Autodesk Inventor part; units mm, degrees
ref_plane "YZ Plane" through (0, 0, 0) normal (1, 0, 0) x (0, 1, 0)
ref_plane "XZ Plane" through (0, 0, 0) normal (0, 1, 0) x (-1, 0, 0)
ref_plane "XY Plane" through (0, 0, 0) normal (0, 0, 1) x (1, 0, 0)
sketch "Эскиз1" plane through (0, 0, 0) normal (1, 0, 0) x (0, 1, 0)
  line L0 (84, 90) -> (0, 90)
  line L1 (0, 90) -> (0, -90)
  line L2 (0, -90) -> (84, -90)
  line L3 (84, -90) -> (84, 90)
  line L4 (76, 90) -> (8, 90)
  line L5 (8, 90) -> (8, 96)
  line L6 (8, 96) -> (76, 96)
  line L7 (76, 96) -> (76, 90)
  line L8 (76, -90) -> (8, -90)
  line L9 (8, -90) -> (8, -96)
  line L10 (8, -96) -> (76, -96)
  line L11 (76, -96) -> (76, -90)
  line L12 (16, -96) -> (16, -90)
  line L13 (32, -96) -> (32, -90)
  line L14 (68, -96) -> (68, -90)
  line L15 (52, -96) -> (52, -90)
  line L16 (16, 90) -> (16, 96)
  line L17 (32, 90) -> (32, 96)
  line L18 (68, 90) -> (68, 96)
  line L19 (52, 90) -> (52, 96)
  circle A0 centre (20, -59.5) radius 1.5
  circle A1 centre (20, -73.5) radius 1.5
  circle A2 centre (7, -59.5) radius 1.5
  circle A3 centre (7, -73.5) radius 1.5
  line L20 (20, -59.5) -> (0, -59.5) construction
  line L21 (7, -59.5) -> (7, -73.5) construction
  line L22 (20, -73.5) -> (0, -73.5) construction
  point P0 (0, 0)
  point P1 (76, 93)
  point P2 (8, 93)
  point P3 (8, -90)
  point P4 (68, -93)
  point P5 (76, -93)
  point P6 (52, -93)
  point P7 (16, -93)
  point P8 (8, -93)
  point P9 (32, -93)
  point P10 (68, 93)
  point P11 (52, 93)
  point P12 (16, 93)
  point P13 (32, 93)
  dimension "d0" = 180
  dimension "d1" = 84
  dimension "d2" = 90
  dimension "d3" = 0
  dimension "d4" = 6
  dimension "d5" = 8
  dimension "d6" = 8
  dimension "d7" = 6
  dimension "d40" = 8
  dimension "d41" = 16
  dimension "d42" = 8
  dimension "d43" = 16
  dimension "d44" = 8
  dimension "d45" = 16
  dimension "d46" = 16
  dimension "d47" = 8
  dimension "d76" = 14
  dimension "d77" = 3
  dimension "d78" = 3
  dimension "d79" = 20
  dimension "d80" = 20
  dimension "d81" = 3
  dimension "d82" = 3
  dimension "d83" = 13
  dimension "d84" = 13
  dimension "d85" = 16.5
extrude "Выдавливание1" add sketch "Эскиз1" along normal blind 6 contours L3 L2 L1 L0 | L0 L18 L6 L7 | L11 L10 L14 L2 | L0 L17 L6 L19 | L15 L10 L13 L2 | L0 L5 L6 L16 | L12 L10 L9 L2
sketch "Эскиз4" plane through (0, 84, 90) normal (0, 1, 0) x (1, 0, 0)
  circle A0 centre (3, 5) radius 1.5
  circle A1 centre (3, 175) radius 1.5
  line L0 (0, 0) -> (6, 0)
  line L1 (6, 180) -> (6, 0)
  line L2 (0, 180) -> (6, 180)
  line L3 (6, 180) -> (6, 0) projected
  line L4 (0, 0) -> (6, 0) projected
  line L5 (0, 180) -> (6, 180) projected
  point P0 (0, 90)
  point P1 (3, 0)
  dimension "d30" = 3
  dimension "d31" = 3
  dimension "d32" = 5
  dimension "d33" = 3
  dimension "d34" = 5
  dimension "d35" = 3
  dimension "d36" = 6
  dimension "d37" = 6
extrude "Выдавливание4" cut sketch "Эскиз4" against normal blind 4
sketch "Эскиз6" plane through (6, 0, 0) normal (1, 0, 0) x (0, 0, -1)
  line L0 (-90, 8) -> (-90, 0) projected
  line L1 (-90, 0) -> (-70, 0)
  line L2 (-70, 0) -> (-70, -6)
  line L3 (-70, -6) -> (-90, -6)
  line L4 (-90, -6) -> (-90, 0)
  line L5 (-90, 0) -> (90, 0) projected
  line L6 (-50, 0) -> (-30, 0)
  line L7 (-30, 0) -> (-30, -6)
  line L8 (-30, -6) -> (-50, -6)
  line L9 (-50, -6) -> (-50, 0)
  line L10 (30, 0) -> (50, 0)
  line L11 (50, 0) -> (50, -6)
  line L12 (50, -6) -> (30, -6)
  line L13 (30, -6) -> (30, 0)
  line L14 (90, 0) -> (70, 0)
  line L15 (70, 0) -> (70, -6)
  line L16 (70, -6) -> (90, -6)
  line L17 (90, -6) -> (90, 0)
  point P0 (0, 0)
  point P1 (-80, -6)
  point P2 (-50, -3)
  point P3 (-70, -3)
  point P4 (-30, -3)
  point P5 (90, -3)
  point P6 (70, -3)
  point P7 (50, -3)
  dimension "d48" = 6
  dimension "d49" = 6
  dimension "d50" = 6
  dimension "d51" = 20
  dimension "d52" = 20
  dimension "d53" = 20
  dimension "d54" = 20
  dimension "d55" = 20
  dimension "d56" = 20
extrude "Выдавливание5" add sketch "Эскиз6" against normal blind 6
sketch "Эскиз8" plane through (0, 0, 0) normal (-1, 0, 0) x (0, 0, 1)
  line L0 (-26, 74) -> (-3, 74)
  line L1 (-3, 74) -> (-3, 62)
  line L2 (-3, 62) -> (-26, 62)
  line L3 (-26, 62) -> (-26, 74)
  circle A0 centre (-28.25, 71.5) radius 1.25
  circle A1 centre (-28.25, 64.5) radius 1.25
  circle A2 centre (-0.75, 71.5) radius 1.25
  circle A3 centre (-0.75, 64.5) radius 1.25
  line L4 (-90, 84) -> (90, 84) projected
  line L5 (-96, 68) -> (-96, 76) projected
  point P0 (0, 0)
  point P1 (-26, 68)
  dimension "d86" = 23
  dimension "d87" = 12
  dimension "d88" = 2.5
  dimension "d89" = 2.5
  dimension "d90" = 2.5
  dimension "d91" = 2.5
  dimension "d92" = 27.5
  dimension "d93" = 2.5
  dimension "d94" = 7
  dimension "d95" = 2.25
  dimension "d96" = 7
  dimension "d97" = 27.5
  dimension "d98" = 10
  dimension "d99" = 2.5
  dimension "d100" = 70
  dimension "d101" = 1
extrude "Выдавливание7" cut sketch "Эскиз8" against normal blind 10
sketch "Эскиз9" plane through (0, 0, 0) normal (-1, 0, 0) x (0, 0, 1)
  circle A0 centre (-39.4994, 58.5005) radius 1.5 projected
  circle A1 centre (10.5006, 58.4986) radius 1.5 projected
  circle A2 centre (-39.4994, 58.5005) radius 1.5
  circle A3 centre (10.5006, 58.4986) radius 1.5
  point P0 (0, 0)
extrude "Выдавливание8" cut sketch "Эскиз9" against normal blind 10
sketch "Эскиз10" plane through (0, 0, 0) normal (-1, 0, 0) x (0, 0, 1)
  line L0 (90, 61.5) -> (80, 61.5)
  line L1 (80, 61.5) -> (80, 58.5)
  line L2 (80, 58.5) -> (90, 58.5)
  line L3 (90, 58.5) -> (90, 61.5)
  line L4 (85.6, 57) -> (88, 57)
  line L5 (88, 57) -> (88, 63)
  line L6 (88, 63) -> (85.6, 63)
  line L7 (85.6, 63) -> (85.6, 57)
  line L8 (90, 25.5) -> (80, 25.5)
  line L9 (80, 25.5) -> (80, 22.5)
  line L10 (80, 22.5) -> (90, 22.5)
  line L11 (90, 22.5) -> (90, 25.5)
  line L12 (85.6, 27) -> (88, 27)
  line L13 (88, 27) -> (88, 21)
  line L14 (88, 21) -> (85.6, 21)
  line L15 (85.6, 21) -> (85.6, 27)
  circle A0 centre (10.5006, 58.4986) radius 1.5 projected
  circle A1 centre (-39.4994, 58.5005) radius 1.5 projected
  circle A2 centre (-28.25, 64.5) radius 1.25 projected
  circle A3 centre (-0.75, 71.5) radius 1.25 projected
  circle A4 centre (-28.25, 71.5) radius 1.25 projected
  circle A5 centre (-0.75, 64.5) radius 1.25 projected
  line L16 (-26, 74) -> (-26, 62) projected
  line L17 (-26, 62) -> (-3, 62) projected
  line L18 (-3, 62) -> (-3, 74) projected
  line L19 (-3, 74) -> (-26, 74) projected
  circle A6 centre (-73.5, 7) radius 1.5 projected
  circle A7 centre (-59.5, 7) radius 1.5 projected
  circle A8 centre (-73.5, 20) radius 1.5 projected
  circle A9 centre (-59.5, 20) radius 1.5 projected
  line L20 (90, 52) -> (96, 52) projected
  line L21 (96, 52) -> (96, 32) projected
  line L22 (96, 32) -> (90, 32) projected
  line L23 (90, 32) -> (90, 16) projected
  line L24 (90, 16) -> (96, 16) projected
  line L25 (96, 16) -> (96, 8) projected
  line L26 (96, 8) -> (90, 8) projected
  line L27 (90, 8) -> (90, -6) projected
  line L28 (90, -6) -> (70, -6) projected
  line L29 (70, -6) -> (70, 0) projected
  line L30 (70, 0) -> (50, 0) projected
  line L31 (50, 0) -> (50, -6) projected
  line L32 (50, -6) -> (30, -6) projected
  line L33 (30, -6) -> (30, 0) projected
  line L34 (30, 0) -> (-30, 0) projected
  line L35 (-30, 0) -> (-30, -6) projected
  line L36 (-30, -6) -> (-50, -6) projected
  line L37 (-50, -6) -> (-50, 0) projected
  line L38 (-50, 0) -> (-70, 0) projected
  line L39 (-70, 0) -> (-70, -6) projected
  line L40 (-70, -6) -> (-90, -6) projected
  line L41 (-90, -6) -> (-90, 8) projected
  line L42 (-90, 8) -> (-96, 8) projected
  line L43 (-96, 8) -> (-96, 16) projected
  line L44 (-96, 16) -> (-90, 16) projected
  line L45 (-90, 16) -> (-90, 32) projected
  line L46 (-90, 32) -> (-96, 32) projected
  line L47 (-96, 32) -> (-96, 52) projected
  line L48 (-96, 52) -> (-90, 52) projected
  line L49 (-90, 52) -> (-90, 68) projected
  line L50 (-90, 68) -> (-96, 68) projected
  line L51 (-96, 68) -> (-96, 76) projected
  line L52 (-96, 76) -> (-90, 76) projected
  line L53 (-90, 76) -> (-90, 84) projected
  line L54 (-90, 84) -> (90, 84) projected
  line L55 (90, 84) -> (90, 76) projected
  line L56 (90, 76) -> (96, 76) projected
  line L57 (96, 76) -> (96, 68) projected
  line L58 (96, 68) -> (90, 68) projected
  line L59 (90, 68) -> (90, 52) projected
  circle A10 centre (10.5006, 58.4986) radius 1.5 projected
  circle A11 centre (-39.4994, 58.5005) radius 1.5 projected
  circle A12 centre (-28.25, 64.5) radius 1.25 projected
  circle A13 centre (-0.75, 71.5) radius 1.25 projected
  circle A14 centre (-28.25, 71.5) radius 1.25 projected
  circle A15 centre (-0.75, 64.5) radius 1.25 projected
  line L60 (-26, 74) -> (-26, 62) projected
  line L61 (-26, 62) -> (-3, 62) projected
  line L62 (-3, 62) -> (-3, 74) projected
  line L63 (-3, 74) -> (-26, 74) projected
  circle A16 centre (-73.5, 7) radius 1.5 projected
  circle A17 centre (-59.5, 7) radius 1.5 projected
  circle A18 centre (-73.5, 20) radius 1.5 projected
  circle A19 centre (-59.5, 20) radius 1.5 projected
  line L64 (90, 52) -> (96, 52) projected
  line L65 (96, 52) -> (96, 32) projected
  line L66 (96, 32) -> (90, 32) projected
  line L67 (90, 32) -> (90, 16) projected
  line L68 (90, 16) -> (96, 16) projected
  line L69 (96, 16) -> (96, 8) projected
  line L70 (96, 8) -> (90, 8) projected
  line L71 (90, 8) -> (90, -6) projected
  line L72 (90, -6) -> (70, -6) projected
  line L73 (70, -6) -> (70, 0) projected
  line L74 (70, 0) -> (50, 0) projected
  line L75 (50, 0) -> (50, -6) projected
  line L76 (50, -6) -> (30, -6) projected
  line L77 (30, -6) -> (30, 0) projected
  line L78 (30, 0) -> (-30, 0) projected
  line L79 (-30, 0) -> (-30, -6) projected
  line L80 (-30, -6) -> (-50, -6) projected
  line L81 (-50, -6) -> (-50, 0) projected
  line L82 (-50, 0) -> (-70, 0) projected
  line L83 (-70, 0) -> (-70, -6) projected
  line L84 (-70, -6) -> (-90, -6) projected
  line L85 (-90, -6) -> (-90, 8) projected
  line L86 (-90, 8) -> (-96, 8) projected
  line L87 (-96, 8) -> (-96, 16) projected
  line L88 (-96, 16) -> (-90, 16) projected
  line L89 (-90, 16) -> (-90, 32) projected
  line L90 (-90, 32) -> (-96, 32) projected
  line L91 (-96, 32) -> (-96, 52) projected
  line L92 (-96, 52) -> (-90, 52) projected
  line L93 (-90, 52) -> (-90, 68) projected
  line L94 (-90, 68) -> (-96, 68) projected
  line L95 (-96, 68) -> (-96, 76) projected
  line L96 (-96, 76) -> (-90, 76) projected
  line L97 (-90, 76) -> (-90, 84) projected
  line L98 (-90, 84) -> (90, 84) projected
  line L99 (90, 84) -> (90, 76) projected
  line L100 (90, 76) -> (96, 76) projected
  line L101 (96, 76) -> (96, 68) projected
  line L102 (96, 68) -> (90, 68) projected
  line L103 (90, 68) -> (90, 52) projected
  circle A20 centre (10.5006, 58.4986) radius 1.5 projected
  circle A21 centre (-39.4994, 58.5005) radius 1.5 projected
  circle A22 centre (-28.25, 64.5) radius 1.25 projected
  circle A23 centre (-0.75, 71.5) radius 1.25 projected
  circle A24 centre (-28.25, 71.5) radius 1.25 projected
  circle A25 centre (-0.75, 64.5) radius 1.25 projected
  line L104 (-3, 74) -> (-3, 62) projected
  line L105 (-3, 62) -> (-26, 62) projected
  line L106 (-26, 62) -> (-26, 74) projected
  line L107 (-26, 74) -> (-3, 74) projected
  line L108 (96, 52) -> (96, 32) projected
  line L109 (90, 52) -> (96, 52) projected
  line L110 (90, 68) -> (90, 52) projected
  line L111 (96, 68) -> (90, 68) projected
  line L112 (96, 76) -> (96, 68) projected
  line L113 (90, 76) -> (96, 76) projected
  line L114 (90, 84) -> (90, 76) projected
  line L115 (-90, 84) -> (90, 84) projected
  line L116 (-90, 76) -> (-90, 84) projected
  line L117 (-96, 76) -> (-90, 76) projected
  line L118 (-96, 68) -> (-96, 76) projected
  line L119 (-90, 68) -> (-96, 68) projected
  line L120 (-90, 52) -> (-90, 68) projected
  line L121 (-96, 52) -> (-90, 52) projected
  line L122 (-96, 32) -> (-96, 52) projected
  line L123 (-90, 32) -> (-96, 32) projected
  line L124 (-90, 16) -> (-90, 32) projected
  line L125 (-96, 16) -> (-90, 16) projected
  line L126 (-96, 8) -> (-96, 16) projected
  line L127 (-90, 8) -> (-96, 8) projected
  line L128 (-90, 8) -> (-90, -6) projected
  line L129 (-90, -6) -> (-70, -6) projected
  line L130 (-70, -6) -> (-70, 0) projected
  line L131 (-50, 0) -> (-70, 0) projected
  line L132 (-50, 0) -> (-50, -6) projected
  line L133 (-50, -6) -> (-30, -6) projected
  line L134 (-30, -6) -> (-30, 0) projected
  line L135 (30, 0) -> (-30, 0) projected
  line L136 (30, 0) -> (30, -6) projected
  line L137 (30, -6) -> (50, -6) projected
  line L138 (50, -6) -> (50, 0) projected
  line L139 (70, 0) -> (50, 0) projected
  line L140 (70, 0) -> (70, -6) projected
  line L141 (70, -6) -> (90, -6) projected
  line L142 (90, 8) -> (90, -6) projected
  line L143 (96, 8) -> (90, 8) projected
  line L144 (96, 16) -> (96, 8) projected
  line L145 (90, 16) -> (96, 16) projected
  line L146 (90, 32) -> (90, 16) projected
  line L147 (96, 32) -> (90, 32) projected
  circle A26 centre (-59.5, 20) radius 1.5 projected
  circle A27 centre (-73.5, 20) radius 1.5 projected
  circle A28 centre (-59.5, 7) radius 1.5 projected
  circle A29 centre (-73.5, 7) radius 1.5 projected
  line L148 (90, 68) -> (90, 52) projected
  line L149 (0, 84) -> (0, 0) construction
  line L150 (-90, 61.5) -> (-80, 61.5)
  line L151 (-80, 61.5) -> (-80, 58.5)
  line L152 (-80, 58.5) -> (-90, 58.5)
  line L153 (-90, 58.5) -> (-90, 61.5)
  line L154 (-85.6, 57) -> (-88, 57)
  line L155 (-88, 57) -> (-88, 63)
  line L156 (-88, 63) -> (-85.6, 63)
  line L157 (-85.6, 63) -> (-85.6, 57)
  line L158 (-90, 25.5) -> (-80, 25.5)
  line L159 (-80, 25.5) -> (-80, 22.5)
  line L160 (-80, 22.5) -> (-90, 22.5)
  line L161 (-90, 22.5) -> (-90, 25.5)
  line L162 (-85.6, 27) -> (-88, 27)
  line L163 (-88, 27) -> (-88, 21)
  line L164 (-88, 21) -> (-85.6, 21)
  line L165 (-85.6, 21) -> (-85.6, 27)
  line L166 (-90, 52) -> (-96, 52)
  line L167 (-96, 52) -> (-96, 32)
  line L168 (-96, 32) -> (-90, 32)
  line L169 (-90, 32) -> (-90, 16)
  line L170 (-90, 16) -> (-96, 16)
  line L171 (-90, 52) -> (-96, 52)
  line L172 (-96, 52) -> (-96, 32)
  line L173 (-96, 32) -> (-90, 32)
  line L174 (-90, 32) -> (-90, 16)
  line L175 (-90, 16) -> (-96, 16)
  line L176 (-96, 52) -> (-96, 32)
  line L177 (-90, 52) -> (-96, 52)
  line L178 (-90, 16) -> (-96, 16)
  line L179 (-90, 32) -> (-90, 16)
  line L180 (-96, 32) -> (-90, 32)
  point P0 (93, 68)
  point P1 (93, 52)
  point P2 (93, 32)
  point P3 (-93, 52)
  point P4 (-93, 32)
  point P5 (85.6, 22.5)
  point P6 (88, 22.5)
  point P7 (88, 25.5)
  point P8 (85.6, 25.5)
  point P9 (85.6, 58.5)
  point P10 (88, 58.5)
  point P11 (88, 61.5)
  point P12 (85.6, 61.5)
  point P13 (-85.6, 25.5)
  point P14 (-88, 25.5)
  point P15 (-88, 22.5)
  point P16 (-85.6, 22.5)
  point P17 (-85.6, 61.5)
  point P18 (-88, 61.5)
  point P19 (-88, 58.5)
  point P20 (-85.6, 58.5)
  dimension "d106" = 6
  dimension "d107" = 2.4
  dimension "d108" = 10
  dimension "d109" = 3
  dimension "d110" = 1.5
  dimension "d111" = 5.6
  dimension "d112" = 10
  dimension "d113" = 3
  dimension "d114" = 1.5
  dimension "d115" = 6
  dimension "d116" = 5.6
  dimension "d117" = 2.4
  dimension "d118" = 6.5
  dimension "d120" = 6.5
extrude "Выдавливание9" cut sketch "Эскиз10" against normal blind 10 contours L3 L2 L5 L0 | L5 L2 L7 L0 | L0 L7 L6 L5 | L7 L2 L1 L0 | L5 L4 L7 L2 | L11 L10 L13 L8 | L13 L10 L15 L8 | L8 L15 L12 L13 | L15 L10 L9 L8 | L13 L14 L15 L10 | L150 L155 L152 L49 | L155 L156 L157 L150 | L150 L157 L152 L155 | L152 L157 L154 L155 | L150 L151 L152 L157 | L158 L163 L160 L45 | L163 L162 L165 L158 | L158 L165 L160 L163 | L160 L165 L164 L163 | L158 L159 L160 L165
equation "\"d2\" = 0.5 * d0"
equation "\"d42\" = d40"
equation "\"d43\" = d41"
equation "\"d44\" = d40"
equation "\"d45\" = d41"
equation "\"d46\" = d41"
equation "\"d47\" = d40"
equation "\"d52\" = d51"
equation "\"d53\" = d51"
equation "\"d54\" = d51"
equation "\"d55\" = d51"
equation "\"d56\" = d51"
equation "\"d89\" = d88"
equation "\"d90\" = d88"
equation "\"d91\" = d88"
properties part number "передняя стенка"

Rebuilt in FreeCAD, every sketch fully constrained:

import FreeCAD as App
import Part
import Sketcher
Q = App.Units.Quantity

doc = App.newDocument("Part")
body = doc.addObject("PartDesign::Body", "Body")

# Sketch on YZ plane
sketch1 = body.newObject("Sketcher::SketchObject", "Sketch")
sketch1.AttachmentSupport = (doc.getObject("YZ_Plane"), [""])
sketch1.MapMode = "FlatFace"
sketch1.addGeometry([
    Part.LineSegment(App.Vector(84, -90, 0), App.Vector(84, 90, 0)),  # 0
    Part.LineSegment(App.Vector(84, 90, 0), App.Vector(76, 90, 0)),  # 1
    Part.LineSegment(App.Vector(76, 90, 0), App.Vector(76, 96, 0)),  # 2
    Part.LineSegment(App.Vector(76, 96, 0), App.Vector(68, 96, 0)),  # 3
    Part.LineSegment(App.Vector(68, 96, 0), App.Vector(68, 90, 0)),  # 4
    Part.LineSegment(App.Vector(68, 90, 0), App.Vector(52, 90, 0)),  # 5
    Part.LineSegment(App.Vector(52, 90, 0), App.Vector(52, 96, 0)),  # 6
    Part.LineSegment(App.Vector(52, 96, 0), App.Vector(32, 96, 0)),  # 7
    Part.LineSegment(App.Vector(32, 96, 0), App.Vector(32, 90, 0)),  # 8
    Part.LineSegment(App.Vector(32, 90, 0), App.Vector(16, 90, 0)),  # 9
    Part.LineSegment(App.Vector(16, 90, 0), App.Vector(16, 96, 0)),  # 10
    Part.LineSegment(App.Vector(16, 96, 0), App.Vector(8, 96, 0)),  # 11
    Part.LineSegment(App.Vector(8, 96, 0), App.Vector(8, 90, 0)),  # 12
    Part.LineSegment(App.Vector(8, 90, 0), App.Vector(0, 90, 0)),  # 13
    Part.LineSegment(App.Vector(0, 90, 0), App.Vector(0, -90, 0)),  # 14
    Part.LineSegment(App.Vector(0, -90, 0), App.Vector(8, -90, 0)),  # 15
    Part.LineSegment(App.Vector(8, -90, 0), App.Vector(8, -96, 0)),  # 16
    Part.LineSegment(App.Vector(8, -96, 0), App.Vector(16, -96, 0)),  # 17
    Part.LineSegment(App.Vector(16, -96, 0), App.Vector(16, -90, 0)),  # 18
    Part.LineSegment(App.Vector(16, -90, 0), App.Vector(32, -90, 0)),  # 19
    Part.LineSegment(App.Vector(32, -90, 0), App.Vector(32, -96, 0)),  # 20
    Part.LineSegment(App.Vector(32, -96, 0), App.Vector(52, -96, 0)),  # 21
    Part.LineSegment(App.Vector(52, -96, 0), App.Vector(52, -90, 0)),  # 22
    Part.LineSegment(App.Vector(52, -90, 0), App.Vector(68, -90, 0)),  # 23
    Part.LineSegment(App.Vector(68, -90, 0), App.Vector(68, -96, 0)),  # 24
    Part.LineSegment(App.Vector(68, -96, 0), App.Vector(76, -96, 0)),  # 25
    Part.LineSegment(App.Vector(76, -96, 0), App.Vector(76, -90, 0)),  # 26
    Part.LineSegment(App.Vector(76, -90, 0), App.Vector(84, -90, 0)),  # 27
    Part.Circle(App.Vector(7, -73.5, 0), App.Vector(0, 0, 1), 1.5),  # 28
    Part.Circle(App.Vector(20, -73.5, 0), App.Vector(0, 0, 1), 1.5),  # 29
    Part.Circle(App.Vector(7, -59.5, 0), App.Vector(0, 0, 1), 1.5),  # 30
    Part.Circle(App.Vector(20, -59.5, 0), App.Vector(0, 0, 1), 1.5),  # 31
], False)
sketch1.addConstraint([
    Sketcher.Constraint("Coincident", 0, 2, 1, 1),
    Sketcher.Constraint("Coincident", 1, 2, 2, 1),
    Sketcher.Constraint("Coincident", 2, 2, 3, 1),
    Sketcher.Constraint("Coincident", 3, 2, 4, 1),
    Sketcher.Constraint("Coincident", 4, 2, 5, 1),
    Sketcher.Constraint("Coincident", 5, 2, 6, 1),
    Sketcher.Constraint("Coincident", 6, 2, 7, 1),
    Sketcher.Constraint("Coincident", 7, 2, 8, 1),
    Sketcher.Constraint("Coincident", 8, 2, 9, 1),
    Sketcher.Constraint("Coincident", 9, 2, 10, 1),
    Sketcher.Constraint("Coincident", 10, 2, 11, 1),
    Sketcher.Constraint("Coincident", 11, 2, 12, 1),
    Sketcher.Constraint("Coincident", 12, 2, 13, 1),
    Sketcher.Constraint("Coincident", 13, 2, 14, 1),
    Sketcher.Constraint("Coincident", 14, 2, 15, 1),
    Sketcher.Constraint("Coincident", 15, 2, 16, 1),
    Sketcher.Constraint("Coincident", 16, 2, 17, 1),
    Sketcher.Constraint("Coincident", 17, 2, 18, 1),
    Sketcher.Constraint("Coincident", 18, 2, 19, 1),
    Sketcher.Constraint("Coincident", 19, 2, 20, 1),
    Sketcher.Constraint("Coincident", 20, 2, 21, 1),
    Sketcher.Constraint("Coincident", 21, 2, 22, 1),
    Sketcher.Constraint("Coincident", 22, 2, 23, 1),
    Sketcher.Constraint("Coincident", 23, 2, 24, 1),
    Sketcher.Constraint("Coincident", 24, 2, 25, 1),
    Sketcher.Constraint("Coincident", 25, 2, 26, 1),
    Sketcher.Constraint("Coincident", 26, 2, 27, 1),
    Sketcher.Constraint("Coincident", 27, 2, 0, 1),
    Sketcher.Constraint("Vertical", 0),
    Sketcher.Constraint("Horizontal", 1),
    Sketcher.Constraint("Vertical", 2),
    Sketcher.Constraint("Horizontal", 3),
    Sketcher.Constraint("Vertical", 4),
    Sketcher.Constraint("Horizontal", 5),
    Sketcher.Constraint("Vertical", 6),
    Sketcher.Constraint("Horizontal", 7),
    Sketcher.Constraint("Vertical", 8),
    Sketcher.Constraint("Horizontal", 9),
    Sketcher.Constraint("Vertical", 10),
    Sketcher.Constraint("Horizontal", 11),
    Sketcher.Constraint("Vertical", 12),
    Sketcher.Constraint("Horizontal", 13),
    Sketcher.Constraint("Vertical", 14),
    Sketcher.Constraint("Horizontal", 15),
    Sketcher.Constraint("Vertical", 16),
    Sketcher.Constraint("Horizontal", 17),
    Sketcher.Constraint("Vertical", 18),
    Sketcher.Constraint("Horizontal", 19),
    Sketcher.Constraint("Vertical", 20),
    Sketcher.Constraint("Horizontal", 21),
    Sketcher.Constraint("Vertical", 22),
    Sketcher.Constraint("Horizontal", 23),
    Sketcher.Constraint("Vertical", 24),
    Sketcher.Constraint("Horizontal", 25),
    Sketcher.Constraint("Vertical", 26),
    Sketcher.Constraint("Horizontal", 27),
    Sketcher.Constraint("Equal", 28, 29),
    Sketcher.Constraint("Equal", 29, 30),
    Sketcher.Constraint("Equal", 30, 31),
    Sketcher.Constraint("Symmetric", 13, 2, 14, 2, -1, 1),
    Sketcher.Constraint("Symmetric", 11, 2, 16, 2, -1),
    Sketcher.Constraint("Symmetric", 9, 2, 18, 2, -1),
    Sketcher.Constraint("Symmetric", 7, 2, 20, 2, -1),
    Sketcher.Constraint("Symmetric", 5, 2, 22, 2, -1),
    Sketcher.Constraint("Symmetric", 3, 2, 24, 2, -1),
    Sketcher.Constraint("Symmetric", 1, 2, 26, 2, -1),
    Sketcher.Constraint("Horizontal", 28, 3, 29, 3),
    Sketcher.Constraint("Horizontal", 30, 3, 31, 3),
    Sketcher.Constraint("Horizontal", 1, 2, 4, 2),
    Sketcher.Constraint("Horizontal", 3, 2, 6, 2),
    Sketcher.Constraint("Horizontal", 5, 2, 8, 2),
    Sketcher.Constraint("Horizontal", 7, 2, 10, 2),
    Sketcher.Constraint("Horizontal", 9, 2, 12, 2),
    Sketcher.Constraint("Vertical", 28, 3, 30, 3),
    Sketcher.Constraint("Vertical", 29, 3, 31, 3),
    Sketcher.Constraint("Equal", 1, 3),
    Sketcher.Constraint("Equal", 5, 9),
    Sketcher.Constraint("Equal", 3, 11),
    Sketcher.Constraint("Equal", 11, 13),
    Sketcher.Constraint("Diameter", 28, Q("3 mm")),
    Sketcher.Constraint("DistanceX", 1, 2, 1, 1, Q("8 mm")),
    Sketcher.Constraint("DistanceX", 5, 2, 5, 1, Q("16 mm")),
    Sketcher.Constraint("DistanceX", 7, 2, 7, 1, Q("20 mm")),
    Sketcher.Constraint("DistanceY", 0, 1, 0, 2, Q("180 mm")),
    Sketcher.Constraint("DistanceY", 2, 1, 2, 2, Q("6 mm")),
    Sketcher.Constraint("DistanceX", -1, 1, 29, 3, Q("20 mm")),
    Sketcher.Constraint("DistanceX", 28, 3, 29, 3, Q("13 mm")),
    Sketcher.Constraint("DistanceY", 28, 3, 30, 3, Q("14 mm")),
    Sketcher.Constraint("DistanceY", 14, 2, 28, 3, Q("16.5 mm")),
])
pad1 = body.newObject("PartDesign::Pad", "Pad")
pad1.Profile = sketch1
pad1.Length = 6

# Sketch on XZ plane
sketch2 = body.newObject("Sketcher::SketchObject", "Sketch001")
sketch2.AttachmentSupport = (doc.getObject("XZ_Plane"), [""])
sketch2.MapMode = "FlatFace"
sketch2.AttachmentOffset = App.Placement(App.Vector(0, 0, -84), App.Rotation())
sketch2.addGeometry([
    Part.Circle(App.Vector(3, 85, 0), App.Vector(0, 0, 1), 1.5),
    Part.Circle(App.Vector(3, -85, 0), App.Vector(0, 0, 1), 1.5),
], False)
sketch2.addConstraint([
    Sketcher.Constraint("Equal", 0, 1),
    Sketcher.Constraint("Symmetric", 0, 3, 1, 3, -1),
    Sketcher.Constraint("Diameter", 0, Q("3 mm")),
    Sketcher.Constraint("DistanceX", -1, 1, 0, 3, Q("3 mm")),
    Sketcher.Constraint("DistanceY", -1, 1, 0, 3, Q("85 mm")),
])
pocket1 = body.newObject("PartDesign::Pocket", "Pocket")
pocket1.Profile = sketch2
pocket1.Length = 4
pocket1.Reversed = True

# Sketch on YZ plane
sketch3 = body.newObject("Sketcher::SketchObject", "Sketch002")
sketch3.AttachmentSupport = (doc.getObject("YZ_Plane"), [""])
sketch3.MapMode = "FlatFace"
sketch3.AttachmentOffset = App.Placement(App.Vector(0, 0, 6), App.Rotation())
sketch3.addGeometry([
    Part.LineSegment(App.Vector(0, -90, 0), App.Vector(0, -70, 0)),  # 0
    Part.LineSegment(App.Vector(0, -70, 0), App.Vector(-6, -70, 0)),  # 1
    Part.LineSegment(App.Vector(-6, -70, 0), App.Vector(-6, -90, 0)),  # 2
    Part.LineSegment(App.Vector(-6, -90, 0), App.Vector(0, -90, 0)),  # 3
    Part.LineSegment(App.Vector(0, -50, 0), App.Vector(0, -30, 0)),  # 4
    Part.LineSegment(App.Vector(0, -30, 0), App.Vector(-6, -30, 0)),  # 5
    Part.LineSegment(App.Vector(-6, -30, 0), App.Vector(-6, -50, 0)),  # 6
    Part.LineSegment(App.Vector(-6, -50, 0), App.Vector(0, -50, 0)),  # 7
    Part.LineSegment(App.Vector(0, 30, 0), App.Vector(0, 50, 0)),  # 8
    Part.LineSegment(App.Vector(0, 50, 0), App.Vector(-6, 50, 0)),  # 9
    Part.LineSegment(App.Vector(-6, 50, 0), App.Vector(-6, 30, 0)),  # 10
    Part.LineSegment(App.Vector(-6, 30, 0), App.Vector(0, 30, 0)),  # 11
    Part.LineSegment(App.Vector(0, 70, 0), App.Vector(0, 90, 0)),  # 12
    Part.LineSegment(App.Vector(0, 90, 0), App.Vector(-6, 90, 0)),  # 13
    Part.LineSegment(App.Vector(-6, 90, 0), App.Vector(-6, 70, 0)),  # 14
    Part.LineSegment(App.Vector(-6, 70, 0), App.Vector(0, 70, 0)),  # 15
], False)
sketch3.addConstraint([
    Sketcher.Constraint("Coincident", 0, 2, 1, 1),
    Sketcher.Constraint("Coincident", 1, 2, 2, 1),
    Sketcher.Constraint("Coincident", 2, 2, 3, 1),
    Sketcher.Constraint("Coincident", 3, 2, 0, 1),
    Sketcher.Constraint("Coincident", 4, 2, 5, 1),
    Sketcher.Constraint("Coincident", 5, 2, 6, 1),
    Sketcher.Constraint("Coincident", 6, 2, 7, 1),
    Sketcher.Constraint("Coincident", 7, 2, 4, 1),
    Sketcher.Constraint("Coincident", 8, 2, 9, 1),
    Sketcher.Constraint("Coincident", 9, 2, 10, 1),
    Sketcher.Constraint("Coincident", 10, 2, 11, 1),
    Sketcher.Constraint("Coincident", 11, 2, 8, 1),
    Sketcher.Constraint("Coincident", 12, 2, 13, 1),
    Sketcher.Constraint("Coincident", 13, 2, 14, 1),
    Sketcher.Constraint("Coincident", 14, 2, 15, 1),
    Sketcher.Constraint("Coincident", 15, 2, 12, 1),
    Sketcher.Constraint("Vertical", 0),
    Sketcher.Constraint("Horizontal", 1),
    Sketcher.Constraint("Vertical", 2),
    Sketcher.Constraint("Horizontal", 3),
    Sketcher.Constraint("Vertical", 4),
    Sketcher.Constraint("Horizontal", 5),
    Sketcher.Constraint("Vertical", 6),
    Sketcher.Constraint("Horizontal", 7),
    Sketcher.Constraint("Vertical", 8),
    Sketcher.Constraint("Horizontal", 9),
    Sketcher.Constraint("Vertical", 10),
    Sketcher.Constraint("Horizontal", 11),
    Sketcher.Constraint("Vertical", 12),
    Sketcher.Constraint("Horizontal", 13),
    Sketcher.Constraint("Vertical", 14),
    Sketcher.Constraint("Horizontal", 15),
    Sketcher.Constraint("Symmetric", 7, 2, 8, 2, -1, 1),
    Sketcher.Constraint("Symmetric", 3, 2, 12, 2, -1, 1),
    Sketcher.Constraint("Symmetric", 5, 2, 10, 2, -1),
    Sketcher.Constraint("Symmetric", 1, 2, 14, 2, -1),
    Sketcher.Constraint("PointOnObject", 0, 2, -2),
    Sketcher.Constraint("PointOnObject", 4, 2, -2),
    Sketcher.Constraint("Vertical", 2, 2, 5, 2),
    Sketcher.Constraint("Equal", 2, 4),
    Sketcher.Constraint("DistanceX", 1, 2, 1, 1, Q("6 mm")),
    Sketcher.Constraint("DistanceY", 0, 1, 0, 2, Q("20 mm")),
    Sketcher.Constraint("DistanceY", 1, 2, 6, 2, Q("20 mm")),
    Sketcher.Constraint("DistanceY", 0, 2, -1, 1, Q("70 mm")),
])
pad2 = body.newObject("PartDesign::Pad", "Pad001")
pad2.Profile = sketch3
pad2.Length = 6
pad2.Reversed = True

# Sketch on YZ plane
sketch4 = body.newObject("Sketcher::SketchObject", "Sketch003")
sketch4.AttachmentSupport = (doc.getObject("YZ_Plane"), [""])
sketch4.MapMode = "FlatFace"
sketch4.addGeometry([
    Part.LineSegment(App.Vector(74, -3, 0), App.Vector(74, -26, 0)),  # 0
    Part.LineSegment(App.Vector(74, -26, 0), App.Vector(62, -26, 0)),  # 1
    Part.LineSegment(App.Vector(62, -26, 0), App.Vector(62, -3, 0)),  # 2
    Part.LineSegment(App.Vector(62, -3, 0), App.Vector(74, -3, 0)),  # 3
    Part.Circle(App.Vector(71.5, -28.25, 0), App.Vector(0, 0, 1), 1.25),  # 4
    Part.Circle(App.Vector(64.5, -28.25, 0), App.Vector(0, 0, 1), 1.25),  # 5
    Part.Circle(App.Vector(71.5, -0.75, 0), App.Vector(0, 0, 1), 1.25),  # 6
    Part.Circle(App.Vector(64.5, -0.75, 0), App.Vector(0, 0, 1), 1.25),  # 7
], False)
sketch4.addConstraint([
    Sketcher.Constraint("Coincident", 0, 2, 1, 1),
    Sketcher.Constraint("Coincident", 1, 2, 2, 1),
    Sketcher.Constraint("Coincident", 2, 2, 3, 1),
    Sketcher.Constraint("Coincident", 3, 2, 0, 1),
    Sketcher.Constraint("Vertical", 0),
    Sketcher.Constraint("Horizontal", 1),
    Sketcher.Constraint("Vertical", 2),
    Sketcher.Constraint("Horizontal", 3),
    Sketcher.Constraint("Equal", 4, 5),
    Sketcher.Constraint("Equal", 5, 6),
    Sketcher.Constraint("Equal", 6, 7),
    Sketcher.Constraint("Horizontal", 4, 3, 5, 3),
    Sketcher.Constraint("Horizontal", 6, 3, 7, 3),
    Sketcher.Constraint("Vertical", 4, 3, 6, 3),
    Sketcher.Constraint("Vertical", 5, 3, 7, 3),
    Sketcher.Constraint("Diameter", 4, Q("2.5 mm")),
    Sketcher.Constraint("DistanceX", 1, 2, 1, 1, Q("12 mm")),
    Sketcher.Constraint("DistanceY", 0, 2, 0, 1, Q("23 mm")),
    Sketcher.Constraint("DistanceX", 5, 3, 4, 3, Q("7 mm")),
    Sketcher.Constraint("DistanceY", 4, 3, 6, 3, Q("27.5 mm")),
    Sketcher.Constraint("DistanceX", 4, 3, 0, 2, Q("2.5 mm")),
    Sketcher.Constraint("DistanceY", 4, 3, 0, 2, Q("2.25 mm")),
    Sketcher.Constraint("DistanceX", -1, 1, 0, 2, Q("74 mm")),
    Sketcher.Constraint("DistanceY", 0, 2, -1, 1, Q("26 mm")),
])
pocket2 = body.newObject("PartDesign::Pocket", "Pocket001")
pocket2.Profile = sketch4
pocket2.Length = 10
pocket2.Reversed = True

# Sketch on YZ plane
sketch5 = body.newObject("Sketcher::SketchObject", "Sketch004")
sketch5.AttachmentSupport = (doc.getObject("YZ_Plane"), [""])
sketch5.MapMode = "FlatFace"
sketch5.addGeometry([
    Part.Circle(App.Vector(58.5005, -39.4994, 0), App.Vector(0, 0, 1), 1.5),
    Part.Circle(App.Vector(58.4986, 10.5006, 0), App.Vector(0, 0, 1), 1.5),
], False)
sketch5.addConstraint([
    Sketcher.Constraint("Equal", 0, 1),
    Sketcher.Constraint("Diameter", 0, Q("3 mm")),
    Sketcher.Constraint("DistanceY", 0, 3, 1, 3, Q("50 mm")),
    Sketcher.Constraint("DistanceX", 1, 3, 0, 3, Q("0.002 mm")),
    Sketcher.Constraint("DistanceX", -1, 1, 0, 3, Q("58.5005 mm")),
    Sketcher.Constraint("DistanceY", 0, 3, -1, 1, Q("39.4994 mm")),
])
pocket3 = body.newObject("PartDesign::Pocket", "Pocket002")
pocket3.Profile = sketch5
pocket3.Length = 10
pocket3.Reversed = True

# Sketch on YZ plane
sketch6 = body.newObject("Sketcher::SketchObject", "Sketch005")
sketch6.AttachmentSupport = (doc.getObject("YZ_Plane"), [""])
sketch6.MapMode = "FlatFace"
sketch6.addGeometry([
    Part.LineSegment(App.Vector(58.5, 90, 0), App.Vector(61.5, 90, 0)),  # 0
    Part.LineSegment(App.Vector(61.5, 90, 0), App.Vector(61.5, 88, 0)),  # 1
    Part.LineSegment(App.Vector(61.5, 88, 0), App.Vector(63, 88, 0)),  # 2
    Part.LineSegment(App.Vector(63, 88, 0), App.Vector(63, 85.6, 0)),  # 3
    Part.LineSegment(App.Vector(63, 85.6, 0), App.Vector(61.5, 85.6, 0)),  # 4
    Part.LineSegment(App.Vector(61.5, 85.6, 0), App.Vector(61.5, 80, 0)),  # 5
    Part.LineSegment(App.Vector(61.5, 80, 0), App.Vector(58.5, 80, 0)),  # 6
    Part.LineSegment(App.Vector(58.5, 80, 0), App.Vector(58.5, 85.6, 0)),  # 7
    Part.LineSegment(App.Vector(58.5, 85.6, 0), App.Vector(57, 85.6, 0)),  # 8
    Part.LineSegment(App.Vector(57, 85.6, 0), App.Vector(57, 88, 0)),  # 9
    Part.LineSegment(App.Vector(57, 88, 0), App.Vector(58.5, 88, 0)),  # 10
    Part.LineSegment(App.Vector(58.5, 88, 0), App.Vector(58.5, 90, 0)),  # 11
    Part.LineSegment(App.Vector(22.5, 90, 0), App.Vector(25.5, 90, 0)),  # 12
    Part.LineSegment(App.Vector(25.5, 90, 0), App.Vector(25.5, 88, 0)),  # 13
    Part.LineSegment(App.Vector(25.5, 88, 0), App.Vector(27, 88, 0)),  # 14
    Part.LineSegment(App.Vector(27, 88, 0), App.Vector(27, 85.6, 0)),  # 15
    Part.LineSegment(App.Vector(27, 85.6, 0), App.Vector(25.5, 85.6, 0)),  # 16
    Part.LineSegment(App.Vector(25.5, 85.6, 0), App.Vector(25.5, 80, 0)),  # 17
    Part.LineSegment(App.Vector(25.5, 80, 0), App.Vector(22.5, 80, 0)),  # 18
    Part.LineSegment(App.Vector(22.5, 80, 0), App.Vector(22.5, 85.6, 0)),  # 19
    Part.LineSegment(App.Vector(22.5, 85.6, 0), App.Vector(21, 85.6, 0)),  # 20
    Part.LineSegment(App.Vector(21, 85.6, 0), App.Vector(21, 88, 0)),  # 21
    Part.LineSegment(App.Vector(21, 88, 0), App.Vector(22.5, 88, 0)),  # 22
    Part.LineSegment(App.Vector(22.5, 88, 0), App.Vector(22.5, 90, 0)),  # 23
    Part.LineSegment(App.Vector(61.5, -88, 0), App.Vector(61.5, -90, 0)),  # 24
    Part.LineSegment(App.Vector(61.5, -90, 0), App.Vector(58.5, -90, 0)),  # 25
    Part.LineSegment(App.Vector(58.5, -90, 0), App.Vector(58.5, -88, 0)),  # 26
    Part.LineSegment(App.Vector(58.5, -88, 0), App.Vector(57, -88, 0)),  # 27
    Part.LineSegment(App.Vector(57, -88, 0), App.Vector(57, -85.6, 0)),  # 28
    Part.LineSegment(App.Vector(57, -85.6, 0), App.Vector(58.5, -85.6, 0)),  # 29
    Part.LineSegment(App.Vector(58.5, -85.6, 0), App.Vector(58.5, -80, 0)),  # 30
    Part.LineSegment(App.Vector(58.5, -80, 0), App.Vector(61.5, -80, 0)),  # 31
    Part.LineSegment(App.Vector(61.5, -80, 0), App.Vector(61.5, -85.6, 0)),  # 32
    Part.LineSegment(App.Vector(61.5, -85.6, 0), App.Vector(63, -85.6, 0)),  # 33
    Part.LineSegment(App.Vector(63, -85.6, 0), App.Vector(63, -88, 0)),  # 34
    Part.LineSegment(App.Vector(63, -88, 0), App.Vector(61.5, -88, 0)),  # 35
    Part.LineSegment(App.Vector(25.5, -88, 0), App.Vector(25.5, -90, 0)),  # 36
    Part.LineSegment(App.Vector(25.5, -90, 0), App.Vector(22.5, -90, 0)),  # 37
    Part.LineSegment(App.Vector(22.5, -90, 0), App.Vector(22.5, -88, 0)),  # 38
    Part.LineSegment(App.Vector(22.5, -88, 0), App.Vector(21, -88, 0)),  # 39
    Part.LineSegment(App.Vector(21, -88, 0), App.Vector(21, -85.6, 0)),  # 40
    Part.LineSegment(App.Vector(21, -85.6, 0), App.Vector(22.5, -85.6, 0)),  # 41
    Part.LineSegment(App.Vector(22.5, -85.6, 0), App.Vector(22.5, -80, 0)),  # 42
    Part.LineSegment(App.Vector(22.5, -80, 0), App.Vector(25.5, -80, 0)),  # 43
    Part.LineSegment(App.Vector(25.5, -80, 0), App.Vector(25.5, -85.6, 0)),  # 44
    Part.LineSegment(App.Vector(25.5, -85.6, 0), App.Vector(27, -85.6, 0)),  # 45
    Part.LineSegment(App.Vector(27, -85.6, 0), App.Vector(27, -88, 0)),  # 46
    Part.LineSegment(App.Vector(27, -88, 0), App.Vector(25.5, -88, 0)),  # 47
], False)
sketch6.addConstraint([
    Sketcher.Constraint("Coincident", 0, 2, 1, 1),
    Sketcher.Constraint("Coincident", 1, 2, 2, 1),
    Sketcher.Constraint("Coincident", 2, 2, 3, 1),
    Sketcher.Constraint("Coincident", 3, 2, 4, 1),
    Sketcher.Constraint("Coincident", 4, 2, 5, 1),
    Sketcher.Constraint("Coincident", 5, 2, 6, 1),
    Sketcher.Constraint("Coincident", 6, 2, 7, 1),
    Sketcher.Constraint("Coincident", 7, 2, 8, 1),
    Sketcher.Constraint("Coincident", 8, 2, 9, 1),
    Sketcher.Constraint("Coincident", 9, 2, 10, 1),
    Sketcher.Constraint("Coincident", 10, 2, 11, 1),
    Sketcher.Constraint("Coincident", 11, 2, 0, 1),
    Sketcher.Constraint("Coincident", 12, 2, 13, 1),
    Sketcher.Constraint("Coincident", 13, 2, 14, 1),
    Sketcher.Constraint("Coincident", 14, 2, 15, 1),
    Sketcher.Constraint("Coincident", 15, 2, 16, 1),
    Sketcher.Constraint("Coincident", 16, 2, 17, 1),
    Sketcher.Constraint("Coincident", 17, 2, 18, 1),
    Sketcher.Constraint("Coincident", 18, 2, 19, 1),
    Sketcher.Constraint("Coincident", 19, 2, 20, 1),
    Sketcher.Constraint("Coincident", 20, 2, 21, 1),
    Sketcher.Constraint("Coincident", 21, 2, 22, 1),
    Sketcher.Constraint("Coincident", 22, 2, 23, 1),
    Sketcher.Constraint("Coincident", 23, 2, 12, 1),
    Sketcher.Constraint("Coincident", 24, 2, 25, 1),
    Sketcher.Constraint("Coincident", 25, 2, 26, 1),
    Sketcher.Constraint("Coincident", 26, 2, 27, 1),
    Sketcher.Constraint("Coincident", 27, 2, 28, 1),
    Sketcher.Constraint("Coincident", 28, 2, 29, 1),
    Sketcher.Constraint("Coincident", 29, 2, 30, 1),
    Sketcher.Constraint("Coincident", 30, 2, 31, 1),
    Sketcher.Constraint("Coincident", 31, 2, 32, 1),
    Sketcher.Constraint("Coincident", 32, 2, 33, 1),
    Sketcher.Constraint("Coincident", 33, 2, 34, 1),
    Sketcher.Constraint("Coincident", 34, 2, 35, 1),
    Sketcher.Constraint("Coincident", 35, 2, 24, 1),
    Sketcher.Constraint("Coincident", 36, 2, 37, 1),
    Sketcher.Constraint("Coincident", 37, 2, 38, 1),
    Sketcher.Constraint("Coincident", 38, 2, 39, 1),
    Sketcher.Constraint("Coincident", 39, 2, 40, 1),
    Sketcher.Constraint("Coincident", 40, 2, 41, 1),
    Sketcher.Constraint("Coincident", 41, 2, 42, 1),
    Sketcher.Constraint("Coincident", 42, 2, 43, 1),
    Sketcher.Constraint("Coincident", 43, 2, 44, 1),
    Sketcher.Constraint("Coincident", 44, 2, 45, 1),
    Sketcher.Constraint("Coincident", 45, 2, 46, 1),
    Sketcher.Constraint("Coincident", 46, 2, 47, 1),
    Sketcher.Constraint("Coincident", 47, 2, 36, 1),
    Sketcher.Constraint("Horizontal", 0),
    Sketcher.Constraint("Vertical", 1),
    Sketcher.Constraint("Horizontal", 2),
    Sketcher.Constraint("Vertical", 3),
    Sketcher.Constraint("Horizontal", 4),
    Sketcher.Constraint("Vertical", 5),
    Sketcher.Constraint("Horizontal", 6),
    Sketcher.Constraint("Vertical", 7),
    Sketcher.Constraint("Horizontal", 8),
    Sketcher.Constraint("Vertical", 9),
    Sketcher.Constraint("Horizontal", 10),
    Sketcher.Constraint("Vertical", 11),
    Sketcher.Constraint("Horizontal", 12),
    Sketcher.Constraint("Vertical", 13),
    Sketcher.Constraint("Horizontal", 14),
    Sketcher.Constraint("Vertical", 15),
    Sketcher.Constraint("Horizontal", 16),
    Sketcher.Constraint("Vertical", 17),
    Sketcher.Constraint("Horizontal", 18),
    Sketcher.Constraint("Vertical", 19),
    Sketcher.Constraint("Horizontal", 20),
    Sketcher.Constraint("Vertical", 21),
    Sketcher.Constraint("Horizontal", 22),
    Sketcher.Constraint("Vertical", 23),
    Sketcher.Constraint("Vertical", 24),
    Sketcher.Constraint("Horizontal", 25),
    Sketcher.Constraint("Vertical", 26),
    Sketcher.Constraint("Horizontal", 27),
    Sketcher.Constraint("Vertical", 28),
    Sketcher.Constraint("Horizontal", 29),
    Sketcher.Constraint("Vertical", 30),
    Sketcher.Constraint("Horizontal", 31),
    Sketcher.Constraint("Vertical", 32),
    Sketcher.Constraint("Horizontal", 33),
    Sketcher.Constraint("Vertical", 34),
    Sketcher.Constraint("Horizontal", 35),
    Sketcher.Constraint("Vertical", 36),
    Sketcher.Constraint("Horizontal", 37),
    Sketcher.Constraint("Vertical", 38),
    Sketcher.Constraint("Horizontal", 39),
    Sketcher.Constraint("Vertical", 40),
    Sketcher.Constraint("Horizontal", 41),
    Sketcher.Constraint("Vertical", 42),
    Sketcher.Constraint("Horizontal", 43),
    Sketcher.Constraint("Vertical", 44),
    Sketcher.Constraint("Horizontal", 45),
    Sketcher.Constraint("Vertical", 46),
    Sketcher.Constraint("Horizontal", 47),
    Sketcher.Constraint("Symmetric", 0, 2, 24, 2, -1),
    Sketcher.Constraint("Symmetric", 10, 2, 26, 2, -1),
    Sketcher.Constraint("Symmetric", 8, 2, 28, 2, -1),
    Sketcher.Constraint("Symmetric", 6, 2, 30, 2, -1),
    Sketcher.Constraint("Symmetric", 4, 2, 32, 2, -1),
    Sketcher.Constraint("Symmetric", 2, 2, 34, 2, -1),
    Sketcher.Constraint("Symmetric", 12, 2, 36, 2, -1),
    Sketcher.Constraint("Symmetric", 22, 2, 38, 2, -1),
    Sketcher.Constraint("Symmetric", 20, 2, 40, 2, -1),
    Sketcher.Constraint("Symmetric", 18, 2, 42, 2, -1),
    Sketcher.Constraint("Symmetric", 16, 2, 44, 2, -1),
    Sketcher.Constraint("Symmetric", 14, 2, 46, 2, -1),
    Sketcher.Constraint("Horizontal", 4, 2, 7, 2),
    Sketcher.Constraint("Horizontal", 2, 2, 9, 2),
    Sketcher.Constraint("Horizontal", 11, 2, 12, 2),
    Sketcher.Constraint("Horizontal", 10, 2, 13, 2),
    Sketcher.Constraint("Horizontal", 8, 2, 15, 2),
    Sketcher.Constraint("Horizontal", 6, 2, 17, 2),
    Sketcher.Constraint("Horizontal", 16, 2, 19, 2),
    Sketcher.Constraint("Horizontal", 14, 2, 21, 2),
    Sketcher.Constraint("Vertical", 1, 2, 4, 2),
    Sketcher.Constraint("Vertical", 7, 2, 10, 2),
    Sketcher.Constraint("Vertical", 13, 2, 16, 2),
    Sketcher.Constraint("Vertical", 19, 2, 22, 2),
    Sketcher.Constraint("Equal", 4, 8),
    Sketcher.Constraint("Equal", 6, 12),
    Sketcher.Constraint("Equal", 10, 14),
    Sketcher.Constraint("Equal", 16, 20),
    Sketcher.Constraint("DistanceX", 0, 1, 0, 2, Q("3 mm")),
    Sketcher.Constraint("DistanceX", 2, 1, 2, 2, Q("1.5 mm")),
    Sketcher.Constraint("DistanceY", 3, 2, 3, 1, Q("2.4 mm")),
    Sketcher.Constraint("DistanceY", 5, 2, 5, 1, Q("5.6 mm")),
    Sketcher.Constraint("DistanceY", 5, 2, 0, 2, Q("10 mm")),
    Sketcher.Constraint("DistanceY", -1, 1, 0, 2, Q("90 mm")),
    Sketcher.Constraint("DistanceX", -1, 1, 2, 2, Q("63 mm")),
    Sketcher.Constraint("DistanceX", -1, 1, 14, 2, Q("27 mm")),
])
pocket4 = body.newObject("PartDesign::Pocket", "Pocket003")
pocket4.Profile = sketch6
pocket4.Length = 10
pocket4.Reversed = True

doc.recompute()
